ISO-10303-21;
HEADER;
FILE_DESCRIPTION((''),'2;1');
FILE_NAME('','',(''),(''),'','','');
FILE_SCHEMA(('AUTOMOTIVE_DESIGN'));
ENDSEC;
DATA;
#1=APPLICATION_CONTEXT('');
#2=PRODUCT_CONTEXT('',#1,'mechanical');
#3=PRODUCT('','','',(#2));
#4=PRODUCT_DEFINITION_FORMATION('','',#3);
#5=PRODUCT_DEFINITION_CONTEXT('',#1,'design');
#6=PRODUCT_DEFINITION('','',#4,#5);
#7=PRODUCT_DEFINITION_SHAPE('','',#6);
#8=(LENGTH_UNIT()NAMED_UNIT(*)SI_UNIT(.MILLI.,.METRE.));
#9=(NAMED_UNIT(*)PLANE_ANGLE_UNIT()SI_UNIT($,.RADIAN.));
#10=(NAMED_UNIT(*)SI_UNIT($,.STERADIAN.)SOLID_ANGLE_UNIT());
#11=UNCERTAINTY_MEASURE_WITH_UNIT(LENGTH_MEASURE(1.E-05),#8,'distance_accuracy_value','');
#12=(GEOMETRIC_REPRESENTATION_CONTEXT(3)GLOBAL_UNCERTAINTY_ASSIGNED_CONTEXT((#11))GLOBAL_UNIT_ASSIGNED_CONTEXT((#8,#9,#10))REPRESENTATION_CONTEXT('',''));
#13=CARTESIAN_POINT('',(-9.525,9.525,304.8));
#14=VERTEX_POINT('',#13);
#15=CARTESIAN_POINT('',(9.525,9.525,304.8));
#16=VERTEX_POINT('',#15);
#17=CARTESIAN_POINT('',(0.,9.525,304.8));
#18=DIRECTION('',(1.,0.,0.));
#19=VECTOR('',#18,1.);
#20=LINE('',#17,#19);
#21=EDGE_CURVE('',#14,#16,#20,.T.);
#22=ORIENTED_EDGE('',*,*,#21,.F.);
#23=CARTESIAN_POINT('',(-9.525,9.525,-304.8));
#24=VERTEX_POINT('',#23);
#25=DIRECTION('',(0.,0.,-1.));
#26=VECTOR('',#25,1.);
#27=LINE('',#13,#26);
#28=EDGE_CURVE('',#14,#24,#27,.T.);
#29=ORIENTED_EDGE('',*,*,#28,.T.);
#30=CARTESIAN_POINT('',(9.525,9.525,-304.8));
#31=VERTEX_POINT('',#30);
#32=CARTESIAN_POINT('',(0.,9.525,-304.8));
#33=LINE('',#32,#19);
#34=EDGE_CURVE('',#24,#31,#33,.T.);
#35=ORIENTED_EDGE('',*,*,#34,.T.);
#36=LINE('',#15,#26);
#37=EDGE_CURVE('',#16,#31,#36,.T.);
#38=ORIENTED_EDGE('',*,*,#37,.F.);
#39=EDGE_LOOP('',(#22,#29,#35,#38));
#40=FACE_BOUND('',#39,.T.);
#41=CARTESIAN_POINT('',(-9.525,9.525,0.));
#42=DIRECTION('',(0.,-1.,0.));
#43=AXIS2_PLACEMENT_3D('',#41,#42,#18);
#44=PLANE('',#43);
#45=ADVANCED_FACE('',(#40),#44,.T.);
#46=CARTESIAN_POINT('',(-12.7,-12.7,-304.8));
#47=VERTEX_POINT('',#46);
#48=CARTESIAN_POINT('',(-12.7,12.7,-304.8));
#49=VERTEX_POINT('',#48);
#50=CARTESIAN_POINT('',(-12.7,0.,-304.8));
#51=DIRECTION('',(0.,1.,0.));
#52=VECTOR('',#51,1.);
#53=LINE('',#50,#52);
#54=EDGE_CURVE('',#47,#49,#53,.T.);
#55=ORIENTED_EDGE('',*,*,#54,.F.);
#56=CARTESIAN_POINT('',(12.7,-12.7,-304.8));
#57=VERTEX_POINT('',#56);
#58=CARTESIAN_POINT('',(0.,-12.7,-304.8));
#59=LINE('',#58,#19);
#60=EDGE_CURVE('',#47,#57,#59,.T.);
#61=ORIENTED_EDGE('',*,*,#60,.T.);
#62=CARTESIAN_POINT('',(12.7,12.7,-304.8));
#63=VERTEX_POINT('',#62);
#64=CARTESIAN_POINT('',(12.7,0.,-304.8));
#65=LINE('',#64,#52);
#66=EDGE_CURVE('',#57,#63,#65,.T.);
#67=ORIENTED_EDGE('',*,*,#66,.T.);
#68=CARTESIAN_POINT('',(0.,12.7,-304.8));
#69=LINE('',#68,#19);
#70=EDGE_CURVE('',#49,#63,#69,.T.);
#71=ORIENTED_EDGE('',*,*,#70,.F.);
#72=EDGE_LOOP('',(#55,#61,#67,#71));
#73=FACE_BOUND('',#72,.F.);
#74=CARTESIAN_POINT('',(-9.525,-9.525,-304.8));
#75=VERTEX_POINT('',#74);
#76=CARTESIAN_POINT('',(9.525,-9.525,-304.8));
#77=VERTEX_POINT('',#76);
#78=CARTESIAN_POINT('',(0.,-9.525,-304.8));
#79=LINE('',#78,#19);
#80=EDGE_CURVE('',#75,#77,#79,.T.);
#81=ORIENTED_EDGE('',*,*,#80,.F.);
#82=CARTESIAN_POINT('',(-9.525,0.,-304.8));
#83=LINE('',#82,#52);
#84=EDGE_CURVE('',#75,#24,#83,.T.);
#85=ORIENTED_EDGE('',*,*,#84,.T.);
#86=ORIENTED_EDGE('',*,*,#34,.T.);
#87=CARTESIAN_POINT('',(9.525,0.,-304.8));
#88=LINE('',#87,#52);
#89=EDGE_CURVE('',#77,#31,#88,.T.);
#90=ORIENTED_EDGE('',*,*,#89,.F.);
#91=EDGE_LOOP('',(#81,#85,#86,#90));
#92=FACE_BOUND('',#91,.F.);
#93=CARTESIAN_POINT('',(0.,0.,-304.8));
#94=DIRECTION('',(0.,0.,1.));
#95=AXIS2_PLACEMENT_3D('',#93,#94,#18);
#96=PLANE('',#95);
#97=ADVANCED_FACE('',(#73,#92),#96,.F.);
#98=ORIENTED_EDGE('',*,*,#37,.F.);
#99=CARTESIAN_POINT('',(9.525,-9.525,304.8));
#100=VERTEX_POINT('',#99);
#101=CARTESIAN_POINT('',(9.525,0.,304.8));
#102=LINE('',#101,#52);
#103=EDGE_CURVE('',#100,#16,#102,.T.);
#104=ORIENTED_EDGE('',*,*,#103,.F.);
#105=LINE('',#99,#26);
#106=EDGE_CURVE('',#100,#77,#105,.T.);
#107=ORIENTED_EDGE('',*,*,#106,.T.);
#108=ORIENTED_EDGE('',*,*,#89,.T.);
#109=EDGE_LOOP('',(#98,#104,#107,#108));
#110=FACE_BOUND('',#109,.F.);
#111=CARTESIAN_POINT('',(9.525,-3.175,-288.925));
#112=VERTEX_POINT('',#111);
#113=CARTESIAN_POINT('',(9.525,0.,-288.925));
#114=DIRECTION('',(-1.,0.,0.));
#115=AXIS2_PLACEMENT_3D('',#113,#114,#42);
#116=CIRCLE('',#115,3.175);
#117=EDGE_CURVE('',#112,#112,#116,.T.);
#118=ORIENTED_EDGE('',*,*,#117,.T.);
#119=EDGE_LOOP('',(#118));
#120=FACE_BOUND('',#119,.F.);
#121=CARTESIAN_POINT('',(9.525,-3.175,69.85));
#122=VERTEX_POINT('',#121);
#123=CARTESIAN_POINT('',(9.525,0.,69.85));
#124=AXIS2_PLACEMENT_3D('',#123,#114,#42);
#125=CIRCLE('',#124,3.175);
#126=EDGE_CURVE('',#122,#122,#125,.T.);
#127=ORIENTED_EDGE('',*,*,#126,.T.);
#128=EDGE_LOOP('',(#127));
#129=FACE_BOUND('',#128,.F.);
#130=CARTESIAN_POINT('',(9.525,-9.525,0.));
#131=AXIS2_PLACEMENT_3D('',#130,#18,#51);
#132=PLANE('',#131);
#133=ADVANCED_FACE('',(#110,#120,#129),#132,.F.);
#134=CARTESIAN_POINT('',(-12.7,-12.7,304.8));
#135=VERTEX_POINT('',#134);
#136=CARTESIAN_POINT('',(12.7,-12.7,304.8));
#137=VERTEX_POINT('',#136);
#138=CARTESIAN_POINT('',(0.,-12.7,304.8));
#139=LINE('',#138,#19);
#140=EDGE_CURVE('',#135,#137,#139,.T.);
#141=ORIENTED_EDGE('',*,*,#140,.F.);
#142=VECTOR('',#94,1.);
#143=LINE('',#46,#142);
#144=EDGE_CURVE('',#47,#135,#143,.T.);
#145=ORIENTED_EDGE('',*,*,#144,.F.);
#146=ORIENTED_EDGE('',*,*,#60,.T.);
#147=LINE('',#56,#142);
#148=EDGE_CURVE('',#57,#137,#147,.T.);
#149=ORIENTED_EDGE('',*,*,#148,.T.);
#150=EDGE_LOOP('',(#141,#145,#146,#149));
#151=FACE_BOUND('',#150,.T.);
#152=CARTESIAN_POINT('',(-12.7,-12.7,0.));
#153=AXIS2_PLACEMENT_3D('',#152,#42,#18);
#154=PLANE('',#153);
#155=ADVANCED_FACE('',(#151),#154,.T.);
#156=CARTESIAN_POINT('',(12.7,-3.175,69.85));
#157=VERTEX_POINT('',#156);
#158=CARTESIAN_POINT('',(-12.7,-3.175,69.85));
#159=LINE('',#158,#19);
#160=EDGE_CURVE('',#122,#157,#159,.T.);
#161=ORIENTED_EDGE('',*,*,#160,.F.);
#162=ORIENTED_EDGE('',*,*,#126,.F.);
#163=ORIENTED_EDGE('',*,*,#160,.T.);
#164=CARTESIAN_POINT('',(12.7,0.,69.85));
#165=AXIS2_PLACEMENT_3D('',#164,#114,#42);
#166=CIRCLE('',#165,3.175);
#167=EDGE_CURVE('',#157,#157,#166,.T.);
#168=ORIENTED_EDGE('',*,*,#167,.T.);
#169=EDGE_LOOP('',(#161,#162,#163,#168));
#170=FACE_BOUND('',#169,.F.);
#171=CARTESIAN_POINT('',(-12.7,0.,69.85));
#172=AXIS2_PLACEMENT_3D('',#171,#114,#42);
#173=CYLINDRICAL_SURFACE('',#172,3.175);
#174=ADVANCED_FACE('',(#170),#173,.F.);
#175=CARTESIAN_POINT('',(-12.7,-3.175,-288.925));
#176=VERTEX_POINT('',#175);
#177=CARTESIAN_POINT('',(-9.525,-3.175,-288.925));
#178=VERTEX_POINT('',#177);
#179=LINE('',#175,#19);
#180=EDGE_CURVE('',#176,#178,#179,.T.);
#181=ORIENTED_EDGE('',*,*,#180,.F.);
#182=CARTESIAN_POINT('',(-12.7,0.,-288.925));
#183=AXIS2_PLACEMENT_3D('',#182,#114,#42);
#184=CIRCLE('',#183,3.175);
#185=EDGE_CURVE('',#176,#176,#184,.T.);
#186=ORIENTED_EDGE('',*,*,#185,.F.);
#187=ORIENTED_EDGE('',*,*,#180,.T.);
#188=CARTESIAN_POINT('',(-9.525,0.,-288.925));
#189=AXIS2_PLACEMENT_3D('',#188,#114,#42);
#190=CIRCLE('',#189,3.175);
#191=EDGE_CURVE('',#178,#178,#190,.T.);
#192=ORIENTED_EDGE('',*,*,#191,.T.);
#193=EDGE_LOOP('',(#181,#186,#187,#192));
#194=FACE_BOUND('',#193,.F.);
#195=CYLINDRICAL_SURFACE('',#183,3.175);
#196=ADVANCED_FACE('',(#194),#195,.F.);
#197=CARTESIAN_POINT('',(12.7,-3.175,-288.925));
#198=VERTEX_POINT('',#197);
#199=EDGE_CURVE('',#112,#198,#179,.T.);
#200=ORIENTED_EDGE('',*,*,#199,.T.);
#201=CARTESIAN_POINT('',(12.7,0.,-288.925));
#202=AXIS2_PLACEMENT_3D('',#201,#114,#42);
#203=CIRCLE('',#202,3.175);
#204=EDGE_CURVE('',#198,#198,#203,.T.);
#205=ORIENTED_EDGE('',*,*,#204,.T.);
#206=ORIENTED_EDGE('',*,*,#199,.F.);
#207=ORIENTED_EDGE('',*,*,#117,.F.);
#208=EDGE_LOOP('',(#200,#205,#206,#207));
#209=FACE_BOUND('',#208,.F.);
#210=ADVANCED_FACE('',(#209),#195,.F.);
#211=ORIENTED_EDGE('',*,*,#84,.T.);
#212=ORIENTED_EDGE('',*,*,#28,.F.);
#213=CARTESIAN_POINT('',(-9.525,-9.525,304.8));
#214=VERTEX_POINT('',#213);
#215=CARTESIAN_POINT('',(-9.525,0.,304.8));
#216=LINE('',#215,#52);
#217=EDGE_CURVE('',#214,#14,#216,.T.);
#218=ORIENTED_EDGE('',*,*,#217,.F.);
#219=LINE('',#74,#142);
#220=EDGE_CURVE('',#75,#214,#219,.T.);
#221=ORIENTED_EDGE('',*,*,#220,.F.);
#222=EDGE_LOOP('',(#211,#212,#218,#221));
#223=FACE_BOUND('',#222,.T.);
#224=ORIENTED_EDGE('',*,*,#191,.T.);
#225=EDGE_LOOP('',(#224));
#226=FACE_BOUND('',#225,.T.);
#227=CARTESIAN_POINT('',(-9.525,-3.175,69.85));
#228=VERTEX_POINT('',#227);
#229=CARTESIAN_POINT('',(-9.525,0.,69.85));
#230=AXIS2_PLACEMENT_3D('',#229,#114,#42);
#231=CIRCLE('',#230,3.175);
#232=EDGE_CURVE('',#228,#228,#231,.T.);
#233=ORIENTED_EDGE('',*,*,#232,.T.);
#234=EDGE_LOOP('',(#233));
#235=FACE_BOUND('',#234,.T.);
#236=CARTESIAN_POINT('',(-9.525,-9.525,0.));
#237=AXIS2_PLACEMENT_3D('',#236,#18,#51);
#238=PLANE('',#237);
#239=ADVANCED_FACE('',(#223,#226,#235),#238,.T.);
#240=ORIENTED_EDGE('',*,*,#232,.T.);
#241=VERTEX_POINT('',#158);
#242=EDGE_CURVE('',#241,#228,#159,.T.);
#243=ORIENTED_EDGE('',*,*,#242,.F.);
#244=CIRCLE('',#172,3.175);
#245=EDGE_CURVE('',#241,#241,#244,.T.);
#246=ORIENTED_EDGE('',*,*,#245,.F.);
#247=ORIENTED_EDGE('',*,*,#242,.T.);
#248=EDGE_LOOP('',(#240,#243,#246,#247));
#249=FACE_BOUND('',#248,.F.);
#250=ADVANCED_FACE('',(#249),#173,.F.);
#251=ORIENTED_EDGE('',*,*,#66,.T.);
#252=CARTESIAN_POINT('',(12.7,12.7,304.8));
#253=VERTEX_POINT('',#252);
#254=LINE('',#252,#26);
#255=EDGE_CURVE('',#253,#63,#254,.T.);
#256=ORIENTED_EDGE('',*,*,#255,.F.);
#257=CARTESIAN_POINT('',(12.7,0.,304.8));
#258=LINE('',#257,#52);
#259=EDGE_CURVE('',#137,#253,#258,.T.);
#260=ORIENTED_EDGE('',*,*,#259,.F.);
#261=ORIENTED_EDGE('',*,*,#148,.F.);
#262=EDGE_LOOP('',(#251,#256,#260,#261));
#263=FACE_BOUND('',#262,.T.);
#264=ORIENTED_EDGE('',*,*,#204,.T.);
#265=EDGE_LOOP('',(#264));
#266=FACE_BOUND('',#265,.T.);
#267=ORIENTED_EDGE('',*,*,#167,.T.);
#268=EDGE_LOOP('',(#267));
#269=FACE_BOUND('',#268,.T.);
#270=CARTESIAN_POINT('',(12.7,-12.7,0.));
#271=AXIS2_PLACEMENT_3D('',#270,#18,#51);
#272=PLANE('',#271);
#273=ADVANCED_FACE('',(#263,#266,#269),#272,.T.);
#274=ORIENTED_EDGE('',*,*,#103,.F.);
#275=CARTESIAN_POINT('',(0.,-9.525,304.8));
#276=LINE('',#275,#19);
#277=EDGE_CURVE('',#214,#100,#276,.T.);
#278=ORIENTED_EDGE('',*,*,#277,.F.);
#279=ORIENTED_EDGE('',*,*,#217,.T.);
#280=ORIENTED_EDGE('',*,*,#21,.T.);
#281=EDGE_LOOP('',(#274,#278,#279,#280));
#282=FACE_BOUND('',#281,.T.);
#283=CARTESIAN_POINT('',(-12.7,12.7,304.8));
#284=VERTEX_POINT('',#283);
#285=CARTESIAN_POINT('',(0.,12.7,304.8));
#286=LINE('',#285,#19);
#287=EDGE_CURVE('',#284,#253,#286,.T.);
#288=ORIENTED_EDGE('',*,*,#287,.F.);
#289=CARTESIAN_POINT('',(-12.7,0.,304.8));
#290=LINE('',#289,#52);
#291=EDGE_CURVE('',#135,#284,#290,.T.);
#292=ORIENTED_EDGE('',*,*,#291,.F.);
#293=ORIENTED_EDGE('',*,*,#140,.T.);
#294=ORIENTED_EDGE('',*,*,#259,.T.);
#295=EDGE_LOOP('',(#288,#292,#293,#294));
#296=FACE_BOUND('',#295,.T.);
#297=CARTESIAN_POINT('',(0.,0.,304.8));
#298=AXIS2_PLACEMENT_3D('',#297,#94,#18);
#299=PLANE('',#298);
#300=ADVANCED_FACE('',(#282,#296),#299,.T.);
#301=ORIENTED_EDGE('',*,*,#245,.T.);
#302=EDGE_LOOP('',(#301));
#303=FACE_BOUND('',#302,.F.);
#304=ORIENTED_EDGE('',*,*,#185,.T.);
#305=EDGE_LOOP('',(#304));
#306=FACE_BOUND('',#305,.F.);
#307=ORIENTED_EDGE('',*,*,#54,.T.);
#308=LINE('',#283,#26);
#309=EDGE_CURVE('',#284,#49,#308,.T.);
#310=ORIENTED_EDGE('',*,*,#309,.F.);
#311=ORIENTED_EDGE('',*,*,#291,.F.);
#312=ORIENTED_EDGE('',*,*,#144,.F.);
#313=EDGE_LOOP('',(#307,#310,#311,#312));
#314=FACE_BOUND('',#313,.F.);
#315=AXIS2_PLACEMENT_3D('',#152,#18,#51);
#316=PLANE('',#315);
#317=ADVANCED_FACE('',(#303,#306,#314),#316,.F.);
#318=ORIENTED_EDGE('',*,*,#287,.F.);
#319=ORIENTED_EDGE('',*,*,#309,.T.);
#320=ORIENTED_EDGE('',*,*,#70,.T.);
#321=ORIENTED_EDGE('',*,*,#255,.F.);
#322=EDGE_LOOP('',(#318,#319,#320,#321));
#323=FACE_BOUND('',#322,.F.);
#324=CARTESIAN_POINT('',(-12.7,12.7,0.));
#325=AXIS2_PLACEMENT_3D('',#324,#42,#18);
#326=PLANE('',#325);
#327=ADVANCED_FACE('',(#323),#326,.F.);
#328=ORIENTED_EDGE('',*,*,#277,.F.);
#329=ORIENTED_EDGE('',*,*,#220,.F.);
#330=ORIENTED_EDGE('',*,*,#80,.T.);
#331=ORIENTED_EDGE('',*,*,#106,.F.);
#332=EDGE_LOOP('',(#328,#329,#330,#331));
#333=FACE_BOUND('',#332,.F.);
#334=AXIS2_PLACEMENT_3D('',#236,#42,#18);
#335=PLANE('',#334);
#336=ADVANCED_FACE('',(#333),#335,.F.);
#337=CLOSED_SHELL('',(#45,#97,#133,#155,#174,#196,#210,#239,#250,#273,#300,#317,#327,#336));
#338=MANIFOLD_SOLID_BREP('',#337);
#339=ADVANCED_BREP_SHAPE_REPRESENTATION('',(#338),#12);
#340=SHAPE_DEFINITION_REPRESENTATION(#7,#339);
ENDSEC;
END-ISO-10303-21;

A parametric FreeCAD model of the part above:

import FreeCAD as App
import Part
import Sketcher

V = App.Vector
Q = App.Units.Quantity


def add_polygon(sketch, points):
    """Adds a closed chain of lines whose ends are joined by coincident constraints."""
    first, n = sketch.GeometryCount, len(points)
    for a, b in zip(points, points[1:] + points[:1]):
        sketch.addGeometry(Part.LineSegment(App.Vector(*a, 0), App.Vector(*b, 0)), False)
    for i in range(n):
        sketch.addConstraint(Sketcher.Constraint("Coincident", first + i, 2, first + (i + 1) % n, 1))

doc = App.newDocument("Part")
body = doc.addObject("PartDesign::Body", "Body")

# Sketch on XY plane
sketch1 = body.newObject("Sketcher::SketchObject", "Sketch")
sketch1.AttachmentSupport = (doc.getObject("XY_Plane"), [""])
sketch1.MapMode = "FlatFace"
add_polygon(sketch1, [(-13, 13), (-13, -13), (13, -13), (13, 13)])  # lines 0-3
add_polygon(sketch1, [(10, -10), (-10, -10), (-10, 10), (10, 10)])  # lines 4-7
sketch1.addConstraint([
    Sketcher.Constraint("Vertical", 0),
    Sketcher.Constraint("Horizontal", 1),
    Sketcher.Constraint("Vertical", 2),
    Sketcher.Constraint("Horizontal", 3),
    Sketcher.Constraint("Horizontal", 4),
    Sketcher.Constraint("Vertical", 5),
    Sketcher.Constraint("Horizontal", 6),
    Sketcher.Constraint("Vertical", 7),
    Sketcher.Constraint("Symmetric", 0, 2, 2, 2, -1, 1),
    Sketcher.Constraint("Symmetric", 4, 2, 6, 2, -1, 1),
    Sketcher.Constraint("Equal", 3, 0),
    Sketcher.Constraint("Equal", 6, 5),
    Sketcher.Constraint("DistanceX", 1, 1, 1, 2, Q("1 in")),
    Sketcher.Constraint("DistanceX", 4, 2, 4, 1, Q("0.75 in")),
])
pad1 = body.newObject("PartDesign::Pad", "Pad")
pad1.Profile = sketch1
pad1.Length = Q("24 in")
pad1.Midplane = True

# Sketch on YZ plane
sketch2 = body.newObject("Sketcher::SketchObject", "Sketch001")
sketch2.AttachmentSupport = (doc.getObject("YZ_Plane"), [""])
sketch2.MapMode = "FlatFace"
sketch2.AttachmentOffset = App.Placement(V(0, 0, -0.5 * 25.4), App.Rotation())
sketch2.addGeometry([
    Part.Circle(V(0, 69.8, 0), V(0, 0, 1), 3.2),
    Part.Circle(V(0, -288.9, 0), V(0, 0, 1), 3.2),
], False)
sketch2.addConstraint([
    Sketcher.Constraint("Equal", 0, 1),
    Sketcher.Constraint("PointOnObject", 0, 3, -2),
    Sketcher.Constraint("PointOnObject", 1, 3, -2),
    Sketcher.Constraint("Diameter", 0, Q("0.25 in")),
    Sketcher.Constraint("DistanceY", -1, 1, 0, 3, Q("2.75 in")),
    Sketcher.Constraint("DistanceY", 1, 3, -1, 1, Q("11.375 in")),
])
pocket1 = body.newObject("PartDesign::Pocket", "Pocket")
pocket1.Profile = sketch2
pocket1.Length = Q("1.25 in")
pocket1.Reversed = True

doc.recompute()
